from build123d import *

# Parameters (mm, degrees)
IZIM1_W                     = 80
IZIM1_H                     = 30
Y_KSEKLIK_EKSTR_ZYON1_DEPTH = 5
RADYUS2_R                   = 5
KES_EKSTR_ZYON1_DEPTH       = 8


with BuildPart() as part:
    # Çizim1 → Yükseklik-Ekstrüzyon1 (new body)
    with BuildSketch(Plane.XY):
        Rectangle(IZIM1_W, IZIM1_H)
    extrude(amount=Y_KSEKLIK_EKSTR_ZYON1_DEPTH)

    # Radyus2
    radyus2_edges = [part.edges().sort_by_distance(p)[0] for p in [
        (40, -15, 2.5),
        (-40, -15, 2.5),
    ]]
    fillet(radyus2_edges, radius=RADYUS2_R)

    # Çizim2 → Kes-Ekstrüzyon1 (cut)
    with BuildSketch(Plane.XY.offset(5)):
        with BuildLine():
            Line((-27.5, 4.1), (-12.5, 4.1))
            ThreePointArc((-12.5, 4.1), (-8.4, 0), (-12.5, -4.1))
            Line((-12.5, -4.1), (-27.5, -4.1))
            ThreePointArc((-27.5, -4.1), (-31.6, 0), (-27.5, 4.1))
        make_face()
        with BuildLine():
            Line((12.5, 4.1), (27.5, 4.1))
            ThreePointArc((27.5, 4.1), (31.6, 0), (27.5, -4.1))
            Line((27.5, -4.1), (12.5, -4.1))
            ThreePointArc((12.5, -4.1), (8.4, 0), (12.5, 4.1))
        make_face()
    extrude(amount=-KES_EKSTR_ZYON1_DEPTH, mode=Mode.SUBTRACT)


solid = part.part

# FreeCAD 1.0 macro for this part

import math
import FreeCAD as App
import Part
import Sketcher

V = App.Vector


def edges_at(feature, points):
    """Names of the edges that pass closest to the given points."""
    edges = feature.Shape.Edges
    near = lambda p: min(range(len(edges)), key=lambda i: edges[i].distToShape(Part.Vertex(*p))[0])
    return sorted({f"Edge{near(p) + 1}" for p in points})

doc = App.newDocument("Part")
body = doc.addObject("PartDesign::Body", "Body")

# Sketch on XY plane
sketch1 = body.newObject("Sketcher::SketchObject", "Sketch")
sketch1.AttachmentSupport = (doc.getObject("XY_Plane"), [""])
sketch1.MapMode = "FlatFace"
sketch1.addGeometry([
    Part.LineSegment(V(-40, 15, 0), V(-40, -15, 0)),
    Part.LineSegment(V(-40, -15, 0), V(40, -15, 0)),
    Part.LineSegment(V(40, -15, 0), V(40, 15, 0)),
    Part.LineSegment(V(40, 15, 0), V(-40, 15, 0)),
], False)
sketch1.addConstraint([
    Sketcher.Constraint("Coincident", 0, 2, 1, 1),
    Sketcher.Constraint("Coincident", 1, 2, 2, 1),
    Sketcher.Constraint("Coincident", 2, 2, 3, 1),
    Sketcher.Constraint("Coincident", 3, 2, 0, 1),
    Sketcher.Constraint("Vertical", 0),
    Sketcher.Constraint("Horizontal", 1),
    Sketcher.Constraint("Vertical", 2),
    Sketcher.Constraint("Horizontal", 3),
    Sketcher.Constraint("Symmetric", 0, 2, 2, 2, -1, 1),
    Sketcher.Constraint("DistanceX", 1, 1, 1, 2, 80.0),
    Sketcher.Constraint("DistanceY", 0, 2, 0, 1, 30.0),
])
pad1 = body.newObject("PartDesign::Pad", "Pad")
pad1.Profile = sketch1
pad1.Length = 5
doc.recompute()

fillet = body.newObject("PartDesign::Fillet", "Fillet")
fillet.Base = (pad1, edges_at(pad1, [(40, -15, 2.5), (-40, -15, 2.5)]))
fillet.Radius = 5

# Sketch on XY plane
sketch2 = body.newObject("Sketcher::SketchObject", "Sketch001")
sketch2.AttachmentSupport = (doc.getObject("XY_Plane"), [""])
sketch2.MapMode = "FlatFace"
sketch2.AttachmentOffset = App.Placement(V(0, 0, 5), App.Rotation())
sketch2.addGeometry([
    Part.LineSegment(V(-12.5, 4.1, 0), V(-27.5, 4.1, 0)),  # 0
    Part.ArcOfCircle(Part.Circle(V(-27.5, 0, 0), V(0, 0, 1), 4.1), math.radians(90), math.radians(270)),  # 1
    Part.LineSegment(V(-27.5, -4.1, 0), V(-12.5, -4.1, 0)),  # 2
    Part.ArcOfCircle(Part.Circle(V(-12.5, 0, 0), V(0, 0, 1), 4.1), math.radians(-90), math.radians(90)),  # 3
    Part.LineSegment(V(27.5, 4.1, 0), V(12.5, 4.1, 0)),  # 4
    Part.ArcOfCircle(Part.Circle(V(12.5, 0, 0), V(0, 0, 1), 4.1), math.radians(90), math.radians(270)),  # 5
    Part.LineSegment(V(12.5, -4.1, 0), V(27.5, -4.1, 0)),  # 6
    Part.ArcOfCircle(Part.Circle(V(27.5, 0, 0), V(0, 0, 1), 4.1), math.radians(-90), math.radians(90)),  # 7
], False)
sketch2.addConstraint([
    Sketcher.Constraint("Tangent", 0, 2, 1, 1),
    Sketcher.Constraint("Tangent", 1, 2, 2, 1),
    Sketcher.Constraint("Tangent", 2, 2, 3, 1),
    Sketcher.Constraint("Tangent", 3, 2, 0, 1),
    Sketcher.Constraint("Tangent", 4, 2, 5, 1),
    Sketcher.Constraint("Tangent", 5, 2, 6, 1),
    Sketcher.Constraint("Tangent", 6, 2, 7, 1),
    Sketcher.Constraint("Tangent", 7, 2, 4, 1),
    Sketcher.Constraint("Horizontal", 0),
    Sketcher.Constraint("Horizontal", 2),
    Sketcher.Constraint("Horizontal", 4),
    Sketcher.Constraint("Horizontal", 6),
    Sketcher.Constraint("Equal", 3, 5),
    Sketcher.Constraint("Symmetric", 3, 3, 5, 3, -1, 1),
    Sketcher.Constraint("Symmetric", 1, 3, 7, 3, -2),
    Sketcher.Constraint("Radius", 1, 4.1),
    Sketcher.Constraint("DistanceX", 0, 2, 0, 1, 15.0),
    Sketcher.Constraint("DistanceX", 3, 3, 5, 3, 25.0),
])
pocket1 = body.newObject("PartDesign::Pocket", "Pocket")
pocket1.Profile = sketch2
pocket1.Length = 8

doc.recompute()
